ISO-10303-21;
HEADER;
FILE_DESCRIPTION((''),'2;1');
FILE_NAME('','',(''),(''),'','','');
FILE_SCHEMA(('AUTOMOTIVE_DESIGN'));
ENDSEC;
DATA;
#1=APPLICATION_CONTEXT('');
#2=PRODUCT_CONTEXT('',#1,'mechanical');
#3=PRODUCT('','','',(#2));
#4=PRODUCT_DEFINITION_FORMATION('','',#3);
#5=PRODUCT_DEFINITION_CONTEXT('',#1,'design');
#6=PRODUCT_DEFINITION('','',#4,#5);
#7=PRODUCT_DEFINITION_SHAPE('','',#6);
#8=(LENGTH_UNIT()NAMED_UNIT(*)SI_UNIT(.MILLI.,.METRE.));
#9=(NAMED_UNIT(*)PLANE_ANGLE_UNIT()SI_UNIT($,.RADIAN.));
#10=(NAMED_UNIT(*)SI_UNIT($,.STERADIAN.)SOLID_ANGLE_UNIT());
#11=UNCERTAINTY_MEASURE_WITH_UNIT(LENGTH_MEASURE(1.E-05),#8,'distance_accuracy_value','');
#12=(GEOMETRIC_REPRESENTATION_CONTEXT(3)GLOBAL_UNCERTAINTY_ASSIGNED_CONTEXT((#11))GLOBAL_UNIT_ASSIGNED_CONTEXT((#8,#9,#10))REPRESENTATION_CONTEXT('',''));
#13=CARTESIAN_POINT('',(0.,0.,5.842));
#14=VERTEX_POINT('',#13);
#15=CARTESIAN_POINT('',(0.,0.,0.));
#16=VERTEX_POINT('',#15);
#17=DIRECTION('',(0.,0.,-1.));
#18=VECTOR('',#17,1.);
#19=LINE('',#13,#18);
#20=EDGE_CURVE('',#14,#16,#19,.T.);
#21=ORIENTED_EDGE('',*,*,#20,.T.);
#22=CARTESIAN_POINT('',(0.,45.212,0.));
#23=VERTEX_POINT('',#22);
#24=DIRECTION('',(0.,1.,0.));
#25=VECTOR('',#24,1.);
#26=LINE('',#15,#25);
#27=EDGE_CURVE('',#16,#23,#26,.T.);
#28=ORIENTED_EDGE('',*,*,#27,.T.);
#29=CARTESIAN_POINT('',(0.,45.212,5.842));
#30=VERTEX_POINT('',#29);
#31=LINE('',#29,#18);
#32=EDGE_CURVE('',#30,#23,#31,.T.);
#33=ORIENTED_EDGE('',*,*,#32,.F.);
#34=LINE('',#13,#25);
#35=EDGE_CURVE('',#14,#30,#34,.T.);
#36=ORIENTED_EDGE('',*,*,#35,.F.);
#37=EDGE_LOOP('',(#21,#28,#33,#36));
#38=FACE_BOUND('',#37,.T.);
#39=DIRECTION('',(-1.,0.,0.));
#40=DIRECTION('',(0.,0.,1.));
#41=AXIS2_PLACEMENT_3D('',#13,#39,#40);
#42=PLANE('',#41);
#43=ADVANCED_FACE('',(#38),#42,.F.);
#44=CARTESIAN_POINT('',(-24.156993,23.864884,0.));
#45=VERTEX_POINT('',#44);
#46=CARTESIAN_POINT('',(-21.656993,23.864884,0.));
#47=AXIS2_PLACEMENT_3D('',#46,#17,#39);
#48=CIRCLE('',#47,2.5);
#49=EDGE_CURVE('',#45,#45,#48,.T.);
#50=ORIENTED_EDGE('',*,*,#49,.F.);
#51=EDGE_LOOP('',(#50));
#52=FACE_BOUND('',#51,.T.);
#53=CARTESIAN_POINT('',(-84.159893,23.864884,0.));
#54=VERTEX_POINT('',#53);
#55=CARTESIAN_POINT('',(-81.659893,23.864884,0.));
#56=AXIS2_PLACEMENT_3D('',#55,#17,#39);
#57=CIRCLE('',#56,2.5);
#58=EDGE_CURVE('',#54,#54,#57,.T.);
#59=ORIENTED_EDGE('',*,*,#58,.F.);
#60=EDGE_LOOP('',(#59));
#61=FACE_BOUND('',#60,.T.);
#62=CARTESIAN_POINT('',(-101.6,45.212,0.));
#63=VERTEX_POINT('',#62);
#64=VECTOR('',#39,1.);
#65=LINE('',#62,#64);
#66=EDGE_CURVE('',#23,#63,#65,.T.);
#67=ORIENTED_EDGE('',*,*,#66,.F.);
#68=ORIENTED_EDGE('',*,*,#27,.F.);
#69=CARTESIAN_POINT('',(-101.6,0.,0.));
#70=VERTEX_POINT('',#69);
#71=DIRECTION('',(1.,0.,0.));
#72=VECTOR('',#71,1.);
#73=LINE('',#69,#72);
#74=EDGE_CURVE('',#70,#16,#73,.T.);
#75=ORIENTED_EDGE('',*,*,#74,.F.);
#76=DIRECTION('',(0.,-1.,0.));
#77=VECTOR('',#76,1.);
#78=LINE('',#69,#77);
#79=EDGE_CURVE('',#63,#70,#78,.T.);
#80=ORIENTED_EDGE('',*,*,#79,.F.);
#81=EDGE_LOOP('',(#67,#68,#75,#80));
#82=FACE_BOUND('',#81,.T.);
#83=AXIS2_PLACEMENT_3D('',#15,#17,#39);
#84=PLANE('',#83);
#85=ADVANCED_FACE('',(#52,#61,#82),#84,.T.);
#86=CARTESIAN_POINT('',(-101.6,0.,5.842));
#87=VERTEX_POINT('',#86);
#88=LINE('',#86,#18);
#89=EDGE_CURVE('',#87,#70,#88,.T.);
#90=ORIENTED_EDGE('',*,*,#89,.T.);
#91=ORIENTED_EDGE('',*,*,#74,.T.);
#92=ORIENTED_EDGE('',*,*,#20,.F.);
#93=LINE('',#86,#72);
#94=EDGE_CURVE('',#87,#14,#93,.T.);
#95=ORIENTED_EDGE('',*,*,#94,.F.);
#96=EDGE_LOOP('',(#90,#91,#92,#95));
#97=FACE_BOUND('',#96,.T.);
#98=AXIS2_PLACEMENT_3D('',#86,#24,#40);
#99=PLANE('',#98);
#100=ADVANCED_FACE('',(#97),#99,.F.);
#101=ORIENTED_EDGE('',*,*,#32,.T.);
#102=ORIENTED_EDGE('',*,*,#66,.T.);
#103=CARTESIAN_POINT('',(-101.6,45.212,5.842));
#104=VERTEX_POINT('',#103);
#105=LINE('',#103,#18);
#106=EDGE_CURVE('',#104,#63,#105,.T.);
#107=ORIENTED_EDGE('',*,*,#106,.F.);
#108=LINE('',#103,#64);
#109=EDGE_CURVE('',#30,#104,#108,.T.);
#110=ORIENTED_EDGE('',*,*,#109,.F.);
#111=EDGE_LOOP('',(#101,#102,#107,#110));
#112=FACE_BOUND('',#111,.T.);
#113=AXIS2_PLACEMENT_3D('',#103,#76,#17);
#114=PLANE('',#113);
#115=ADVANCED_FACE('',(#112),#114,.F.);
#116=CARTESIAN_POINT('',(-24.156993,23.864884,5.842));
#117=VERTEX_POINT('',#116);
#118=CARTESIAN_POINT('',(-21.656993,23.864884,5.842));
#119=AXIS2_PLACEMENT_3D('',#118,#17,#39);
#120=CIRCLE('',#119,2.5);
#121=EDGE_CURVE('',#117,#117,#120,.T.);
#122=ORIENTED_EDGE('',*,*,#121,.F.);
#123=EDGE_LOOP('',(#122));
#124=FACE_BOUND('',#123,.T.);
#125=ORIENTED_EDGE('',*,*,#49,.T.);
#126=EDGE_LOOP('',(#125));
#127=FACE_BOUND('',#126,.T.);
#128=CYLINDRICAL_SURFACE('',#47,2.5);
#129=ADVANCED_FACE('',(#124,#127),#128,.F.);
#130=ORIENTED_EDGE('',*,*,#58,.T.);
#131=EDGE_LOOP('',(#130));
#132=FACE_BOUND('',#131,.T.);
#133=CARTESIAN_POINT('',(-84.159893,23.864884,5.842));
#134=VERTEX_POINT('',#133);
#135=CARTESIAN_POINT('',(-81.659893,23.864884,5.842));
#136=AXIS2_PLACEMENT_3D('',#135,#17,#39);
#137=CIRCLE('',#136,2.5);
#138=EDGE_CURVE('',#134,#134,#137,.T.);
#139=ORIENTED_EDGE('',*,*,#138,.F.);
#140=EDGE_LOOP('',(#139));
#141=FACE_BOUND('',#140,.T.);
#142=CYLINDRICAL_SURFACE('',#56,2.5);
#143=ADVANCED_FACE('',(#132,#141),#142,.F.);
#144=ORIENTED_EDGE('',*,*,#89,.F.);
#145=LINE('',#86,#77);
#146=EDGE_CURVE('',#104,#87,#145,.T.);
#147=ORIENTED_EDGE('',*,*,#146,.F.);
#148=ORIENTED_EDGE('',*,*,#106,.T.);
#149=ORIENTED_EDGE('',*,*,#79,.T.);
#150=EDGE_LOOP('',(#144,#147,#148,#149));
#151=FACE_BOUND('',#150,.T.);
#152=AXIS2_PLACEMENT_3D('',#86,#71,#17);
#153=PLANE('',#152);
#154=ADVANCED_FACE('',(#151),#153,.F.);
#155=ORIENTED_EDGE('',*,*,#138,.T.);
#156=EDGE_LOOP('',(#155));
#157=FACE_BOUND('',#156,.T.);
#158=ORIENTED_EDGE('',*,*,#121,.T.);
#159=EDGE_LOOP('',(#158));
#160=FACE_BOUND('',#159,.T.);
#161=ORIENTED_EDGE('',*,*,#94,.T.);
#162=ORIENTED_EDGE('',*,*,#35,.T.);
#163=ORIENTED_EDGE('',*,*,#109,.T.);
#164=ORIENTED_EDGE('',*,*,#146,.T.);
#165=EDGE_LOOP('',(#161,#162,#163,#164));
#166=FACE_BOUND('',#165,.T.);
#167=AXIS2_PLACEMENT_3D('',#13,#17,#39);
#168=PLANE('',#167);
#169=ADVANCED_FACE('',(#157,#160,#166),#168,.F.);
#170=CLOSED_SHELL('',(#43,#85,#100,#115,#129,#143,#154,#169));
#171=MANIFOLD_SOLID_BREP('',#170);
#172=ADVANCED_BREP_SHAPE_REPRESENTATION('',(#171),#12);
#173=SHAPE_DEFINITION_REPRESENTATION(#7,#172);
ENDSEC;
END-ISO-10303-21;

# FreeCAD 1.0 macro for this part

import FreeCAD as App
import Part
import Sketcher
Q = App.Units.Quantity


def add_polygon(sketch, points):
    """Adds a closed chain of lines whose ends are joined by coincident constraints."""
    first, n = sketch.GeometryCount, len(points)
    for a, b in zip(points, points[1:] + points[:1]):
        sketch.addGeometry(Part.LineSegment(App.Vector(*a, 0), App.Vector(*b, 0)), False)
    for i in range(n):
        sketch.addConstraint(Sketcher.Constraint("Coincident", first + i, 2, first + (i + 1) % n, 1))

doc = App.newDocument("Part")
params = doc.addObject("Spreadsheet::Sheet", "Params")
for row, (alias, value) in enumerate([
    ("sketch1_width", "4 in"),
    ("sketch1_height", "1.78 in"),
    ("pad1_length", "0.23 in"),
    ("hole_diameter", "5 mm"),
    ("hole_depth", "0.59 in"),
], start=1):
    params.set(f"A{row}", alias)
    params.set(f"B{row}", "=" + value)
    params.setAlias(f"B{row}", alias)

body = doc.addObject("PartDesign::Body", "Body")

# Sketch on XY plane
sketch1 = body.newObject("Sketcher::SketchObject", "Sketch")
sketch1.AttachmentSupport = (doc.getObject("XY_Plane"), [""])
sketch1.MapMode = "FlatFace"
add_polygon(sketch1, [(-101.6, 45.212), (-101.6, 0), (0, 0), (0, 45.212)])  # lines 0-3
sketch1.addConstraint(Sketcher.Constraint("Vertical", 0))
sketch1.addConstraint(Sketcher.Constraint("Horizontal", 1))
sketch1.addConstraint(Sketcher.Constraint("Vertical", 2))
sketch1.addConstraint(Sketcher.Constraint("Horizontal", 3))
sketch1.addConstraint(Sketcher.Constraint("Coincident", 1, 2, -1, 1))
sketch1.addConstraint(Sketcher.Constraint("DistanceX", 1, 1, 1, 2, Q("4 in")))
sketch1.addConstraint(Sketcher.Constraint("DistanceY", 0, 2, 0, 1, Q("1.78 in")))
sketch1.setExpression("Constraints[9]", "Params.sketch1_width")
sketch1.setExpression("Constraints[10]", "Params.sketch1_height")
pad1 = body.newObject("PartDesign::Pad", "Pad")
pad1.Profile = sketch1
pad1.setExpression("Length", "Params.pad1_length")

# Sketch on XY plane
sketch2 = body.newObject("Sketcher::SketchObject", "Sketch001")
sketch2.AttachmentSupport = (doc.getObject("XY_Plane"), [""])
sketch2.MapMode = "FlatFace"
sketch2.addGeometry(Part.Circle(App.Vector(-21.656993, 23.864884, 0), App.Vector(0, 0, 1), 2.5), False)
sketch2.addGeometry(Part.Circle(App.Vector(-81.659893, 23.864884, 0), App.Vector(0, 0, 1), 2.5), False)
sketch2.addConstraint(Sketcher.Constraint("Equal", 0, 1))
sketch2.addConstraint(Sketcher.Constraint("Horizontal", 0, 3, 1, 3))
sketch2.addConstraint(Sketcher.Constraint("Diameter", 0, Q("5 mm")))
sketch2.addConstraint(Sketcher.Constraint("DistanceX", 1, 3, 0, 3, Q("60.0029 mm")))
sketch2.addConstraint(Sketcher.Constraint("DistanceX", 0, 3, -1, 1, Q("21.656993 mm")))
sketch2.addConstraint(Sketcher.Constraint("DistanceY", -1, 1, 0, 3, Q("23.864884 mm")))
doc.recompute()
hole = body.newObject("PartDesign::Hole", "Hole")
hole.Profile = sketch2
hole.ThreadType = "None"
hole.setExpression("Diameter", "Params.hole_diameter")
hole.DepthType = "Dimension"
hole.setExpression("Depth", "Params.hole_depth")
hole.DrillPoint = "Angled"
hole.DrillPointAngle = 118
hole.Reversed = True

doc.recompute()
